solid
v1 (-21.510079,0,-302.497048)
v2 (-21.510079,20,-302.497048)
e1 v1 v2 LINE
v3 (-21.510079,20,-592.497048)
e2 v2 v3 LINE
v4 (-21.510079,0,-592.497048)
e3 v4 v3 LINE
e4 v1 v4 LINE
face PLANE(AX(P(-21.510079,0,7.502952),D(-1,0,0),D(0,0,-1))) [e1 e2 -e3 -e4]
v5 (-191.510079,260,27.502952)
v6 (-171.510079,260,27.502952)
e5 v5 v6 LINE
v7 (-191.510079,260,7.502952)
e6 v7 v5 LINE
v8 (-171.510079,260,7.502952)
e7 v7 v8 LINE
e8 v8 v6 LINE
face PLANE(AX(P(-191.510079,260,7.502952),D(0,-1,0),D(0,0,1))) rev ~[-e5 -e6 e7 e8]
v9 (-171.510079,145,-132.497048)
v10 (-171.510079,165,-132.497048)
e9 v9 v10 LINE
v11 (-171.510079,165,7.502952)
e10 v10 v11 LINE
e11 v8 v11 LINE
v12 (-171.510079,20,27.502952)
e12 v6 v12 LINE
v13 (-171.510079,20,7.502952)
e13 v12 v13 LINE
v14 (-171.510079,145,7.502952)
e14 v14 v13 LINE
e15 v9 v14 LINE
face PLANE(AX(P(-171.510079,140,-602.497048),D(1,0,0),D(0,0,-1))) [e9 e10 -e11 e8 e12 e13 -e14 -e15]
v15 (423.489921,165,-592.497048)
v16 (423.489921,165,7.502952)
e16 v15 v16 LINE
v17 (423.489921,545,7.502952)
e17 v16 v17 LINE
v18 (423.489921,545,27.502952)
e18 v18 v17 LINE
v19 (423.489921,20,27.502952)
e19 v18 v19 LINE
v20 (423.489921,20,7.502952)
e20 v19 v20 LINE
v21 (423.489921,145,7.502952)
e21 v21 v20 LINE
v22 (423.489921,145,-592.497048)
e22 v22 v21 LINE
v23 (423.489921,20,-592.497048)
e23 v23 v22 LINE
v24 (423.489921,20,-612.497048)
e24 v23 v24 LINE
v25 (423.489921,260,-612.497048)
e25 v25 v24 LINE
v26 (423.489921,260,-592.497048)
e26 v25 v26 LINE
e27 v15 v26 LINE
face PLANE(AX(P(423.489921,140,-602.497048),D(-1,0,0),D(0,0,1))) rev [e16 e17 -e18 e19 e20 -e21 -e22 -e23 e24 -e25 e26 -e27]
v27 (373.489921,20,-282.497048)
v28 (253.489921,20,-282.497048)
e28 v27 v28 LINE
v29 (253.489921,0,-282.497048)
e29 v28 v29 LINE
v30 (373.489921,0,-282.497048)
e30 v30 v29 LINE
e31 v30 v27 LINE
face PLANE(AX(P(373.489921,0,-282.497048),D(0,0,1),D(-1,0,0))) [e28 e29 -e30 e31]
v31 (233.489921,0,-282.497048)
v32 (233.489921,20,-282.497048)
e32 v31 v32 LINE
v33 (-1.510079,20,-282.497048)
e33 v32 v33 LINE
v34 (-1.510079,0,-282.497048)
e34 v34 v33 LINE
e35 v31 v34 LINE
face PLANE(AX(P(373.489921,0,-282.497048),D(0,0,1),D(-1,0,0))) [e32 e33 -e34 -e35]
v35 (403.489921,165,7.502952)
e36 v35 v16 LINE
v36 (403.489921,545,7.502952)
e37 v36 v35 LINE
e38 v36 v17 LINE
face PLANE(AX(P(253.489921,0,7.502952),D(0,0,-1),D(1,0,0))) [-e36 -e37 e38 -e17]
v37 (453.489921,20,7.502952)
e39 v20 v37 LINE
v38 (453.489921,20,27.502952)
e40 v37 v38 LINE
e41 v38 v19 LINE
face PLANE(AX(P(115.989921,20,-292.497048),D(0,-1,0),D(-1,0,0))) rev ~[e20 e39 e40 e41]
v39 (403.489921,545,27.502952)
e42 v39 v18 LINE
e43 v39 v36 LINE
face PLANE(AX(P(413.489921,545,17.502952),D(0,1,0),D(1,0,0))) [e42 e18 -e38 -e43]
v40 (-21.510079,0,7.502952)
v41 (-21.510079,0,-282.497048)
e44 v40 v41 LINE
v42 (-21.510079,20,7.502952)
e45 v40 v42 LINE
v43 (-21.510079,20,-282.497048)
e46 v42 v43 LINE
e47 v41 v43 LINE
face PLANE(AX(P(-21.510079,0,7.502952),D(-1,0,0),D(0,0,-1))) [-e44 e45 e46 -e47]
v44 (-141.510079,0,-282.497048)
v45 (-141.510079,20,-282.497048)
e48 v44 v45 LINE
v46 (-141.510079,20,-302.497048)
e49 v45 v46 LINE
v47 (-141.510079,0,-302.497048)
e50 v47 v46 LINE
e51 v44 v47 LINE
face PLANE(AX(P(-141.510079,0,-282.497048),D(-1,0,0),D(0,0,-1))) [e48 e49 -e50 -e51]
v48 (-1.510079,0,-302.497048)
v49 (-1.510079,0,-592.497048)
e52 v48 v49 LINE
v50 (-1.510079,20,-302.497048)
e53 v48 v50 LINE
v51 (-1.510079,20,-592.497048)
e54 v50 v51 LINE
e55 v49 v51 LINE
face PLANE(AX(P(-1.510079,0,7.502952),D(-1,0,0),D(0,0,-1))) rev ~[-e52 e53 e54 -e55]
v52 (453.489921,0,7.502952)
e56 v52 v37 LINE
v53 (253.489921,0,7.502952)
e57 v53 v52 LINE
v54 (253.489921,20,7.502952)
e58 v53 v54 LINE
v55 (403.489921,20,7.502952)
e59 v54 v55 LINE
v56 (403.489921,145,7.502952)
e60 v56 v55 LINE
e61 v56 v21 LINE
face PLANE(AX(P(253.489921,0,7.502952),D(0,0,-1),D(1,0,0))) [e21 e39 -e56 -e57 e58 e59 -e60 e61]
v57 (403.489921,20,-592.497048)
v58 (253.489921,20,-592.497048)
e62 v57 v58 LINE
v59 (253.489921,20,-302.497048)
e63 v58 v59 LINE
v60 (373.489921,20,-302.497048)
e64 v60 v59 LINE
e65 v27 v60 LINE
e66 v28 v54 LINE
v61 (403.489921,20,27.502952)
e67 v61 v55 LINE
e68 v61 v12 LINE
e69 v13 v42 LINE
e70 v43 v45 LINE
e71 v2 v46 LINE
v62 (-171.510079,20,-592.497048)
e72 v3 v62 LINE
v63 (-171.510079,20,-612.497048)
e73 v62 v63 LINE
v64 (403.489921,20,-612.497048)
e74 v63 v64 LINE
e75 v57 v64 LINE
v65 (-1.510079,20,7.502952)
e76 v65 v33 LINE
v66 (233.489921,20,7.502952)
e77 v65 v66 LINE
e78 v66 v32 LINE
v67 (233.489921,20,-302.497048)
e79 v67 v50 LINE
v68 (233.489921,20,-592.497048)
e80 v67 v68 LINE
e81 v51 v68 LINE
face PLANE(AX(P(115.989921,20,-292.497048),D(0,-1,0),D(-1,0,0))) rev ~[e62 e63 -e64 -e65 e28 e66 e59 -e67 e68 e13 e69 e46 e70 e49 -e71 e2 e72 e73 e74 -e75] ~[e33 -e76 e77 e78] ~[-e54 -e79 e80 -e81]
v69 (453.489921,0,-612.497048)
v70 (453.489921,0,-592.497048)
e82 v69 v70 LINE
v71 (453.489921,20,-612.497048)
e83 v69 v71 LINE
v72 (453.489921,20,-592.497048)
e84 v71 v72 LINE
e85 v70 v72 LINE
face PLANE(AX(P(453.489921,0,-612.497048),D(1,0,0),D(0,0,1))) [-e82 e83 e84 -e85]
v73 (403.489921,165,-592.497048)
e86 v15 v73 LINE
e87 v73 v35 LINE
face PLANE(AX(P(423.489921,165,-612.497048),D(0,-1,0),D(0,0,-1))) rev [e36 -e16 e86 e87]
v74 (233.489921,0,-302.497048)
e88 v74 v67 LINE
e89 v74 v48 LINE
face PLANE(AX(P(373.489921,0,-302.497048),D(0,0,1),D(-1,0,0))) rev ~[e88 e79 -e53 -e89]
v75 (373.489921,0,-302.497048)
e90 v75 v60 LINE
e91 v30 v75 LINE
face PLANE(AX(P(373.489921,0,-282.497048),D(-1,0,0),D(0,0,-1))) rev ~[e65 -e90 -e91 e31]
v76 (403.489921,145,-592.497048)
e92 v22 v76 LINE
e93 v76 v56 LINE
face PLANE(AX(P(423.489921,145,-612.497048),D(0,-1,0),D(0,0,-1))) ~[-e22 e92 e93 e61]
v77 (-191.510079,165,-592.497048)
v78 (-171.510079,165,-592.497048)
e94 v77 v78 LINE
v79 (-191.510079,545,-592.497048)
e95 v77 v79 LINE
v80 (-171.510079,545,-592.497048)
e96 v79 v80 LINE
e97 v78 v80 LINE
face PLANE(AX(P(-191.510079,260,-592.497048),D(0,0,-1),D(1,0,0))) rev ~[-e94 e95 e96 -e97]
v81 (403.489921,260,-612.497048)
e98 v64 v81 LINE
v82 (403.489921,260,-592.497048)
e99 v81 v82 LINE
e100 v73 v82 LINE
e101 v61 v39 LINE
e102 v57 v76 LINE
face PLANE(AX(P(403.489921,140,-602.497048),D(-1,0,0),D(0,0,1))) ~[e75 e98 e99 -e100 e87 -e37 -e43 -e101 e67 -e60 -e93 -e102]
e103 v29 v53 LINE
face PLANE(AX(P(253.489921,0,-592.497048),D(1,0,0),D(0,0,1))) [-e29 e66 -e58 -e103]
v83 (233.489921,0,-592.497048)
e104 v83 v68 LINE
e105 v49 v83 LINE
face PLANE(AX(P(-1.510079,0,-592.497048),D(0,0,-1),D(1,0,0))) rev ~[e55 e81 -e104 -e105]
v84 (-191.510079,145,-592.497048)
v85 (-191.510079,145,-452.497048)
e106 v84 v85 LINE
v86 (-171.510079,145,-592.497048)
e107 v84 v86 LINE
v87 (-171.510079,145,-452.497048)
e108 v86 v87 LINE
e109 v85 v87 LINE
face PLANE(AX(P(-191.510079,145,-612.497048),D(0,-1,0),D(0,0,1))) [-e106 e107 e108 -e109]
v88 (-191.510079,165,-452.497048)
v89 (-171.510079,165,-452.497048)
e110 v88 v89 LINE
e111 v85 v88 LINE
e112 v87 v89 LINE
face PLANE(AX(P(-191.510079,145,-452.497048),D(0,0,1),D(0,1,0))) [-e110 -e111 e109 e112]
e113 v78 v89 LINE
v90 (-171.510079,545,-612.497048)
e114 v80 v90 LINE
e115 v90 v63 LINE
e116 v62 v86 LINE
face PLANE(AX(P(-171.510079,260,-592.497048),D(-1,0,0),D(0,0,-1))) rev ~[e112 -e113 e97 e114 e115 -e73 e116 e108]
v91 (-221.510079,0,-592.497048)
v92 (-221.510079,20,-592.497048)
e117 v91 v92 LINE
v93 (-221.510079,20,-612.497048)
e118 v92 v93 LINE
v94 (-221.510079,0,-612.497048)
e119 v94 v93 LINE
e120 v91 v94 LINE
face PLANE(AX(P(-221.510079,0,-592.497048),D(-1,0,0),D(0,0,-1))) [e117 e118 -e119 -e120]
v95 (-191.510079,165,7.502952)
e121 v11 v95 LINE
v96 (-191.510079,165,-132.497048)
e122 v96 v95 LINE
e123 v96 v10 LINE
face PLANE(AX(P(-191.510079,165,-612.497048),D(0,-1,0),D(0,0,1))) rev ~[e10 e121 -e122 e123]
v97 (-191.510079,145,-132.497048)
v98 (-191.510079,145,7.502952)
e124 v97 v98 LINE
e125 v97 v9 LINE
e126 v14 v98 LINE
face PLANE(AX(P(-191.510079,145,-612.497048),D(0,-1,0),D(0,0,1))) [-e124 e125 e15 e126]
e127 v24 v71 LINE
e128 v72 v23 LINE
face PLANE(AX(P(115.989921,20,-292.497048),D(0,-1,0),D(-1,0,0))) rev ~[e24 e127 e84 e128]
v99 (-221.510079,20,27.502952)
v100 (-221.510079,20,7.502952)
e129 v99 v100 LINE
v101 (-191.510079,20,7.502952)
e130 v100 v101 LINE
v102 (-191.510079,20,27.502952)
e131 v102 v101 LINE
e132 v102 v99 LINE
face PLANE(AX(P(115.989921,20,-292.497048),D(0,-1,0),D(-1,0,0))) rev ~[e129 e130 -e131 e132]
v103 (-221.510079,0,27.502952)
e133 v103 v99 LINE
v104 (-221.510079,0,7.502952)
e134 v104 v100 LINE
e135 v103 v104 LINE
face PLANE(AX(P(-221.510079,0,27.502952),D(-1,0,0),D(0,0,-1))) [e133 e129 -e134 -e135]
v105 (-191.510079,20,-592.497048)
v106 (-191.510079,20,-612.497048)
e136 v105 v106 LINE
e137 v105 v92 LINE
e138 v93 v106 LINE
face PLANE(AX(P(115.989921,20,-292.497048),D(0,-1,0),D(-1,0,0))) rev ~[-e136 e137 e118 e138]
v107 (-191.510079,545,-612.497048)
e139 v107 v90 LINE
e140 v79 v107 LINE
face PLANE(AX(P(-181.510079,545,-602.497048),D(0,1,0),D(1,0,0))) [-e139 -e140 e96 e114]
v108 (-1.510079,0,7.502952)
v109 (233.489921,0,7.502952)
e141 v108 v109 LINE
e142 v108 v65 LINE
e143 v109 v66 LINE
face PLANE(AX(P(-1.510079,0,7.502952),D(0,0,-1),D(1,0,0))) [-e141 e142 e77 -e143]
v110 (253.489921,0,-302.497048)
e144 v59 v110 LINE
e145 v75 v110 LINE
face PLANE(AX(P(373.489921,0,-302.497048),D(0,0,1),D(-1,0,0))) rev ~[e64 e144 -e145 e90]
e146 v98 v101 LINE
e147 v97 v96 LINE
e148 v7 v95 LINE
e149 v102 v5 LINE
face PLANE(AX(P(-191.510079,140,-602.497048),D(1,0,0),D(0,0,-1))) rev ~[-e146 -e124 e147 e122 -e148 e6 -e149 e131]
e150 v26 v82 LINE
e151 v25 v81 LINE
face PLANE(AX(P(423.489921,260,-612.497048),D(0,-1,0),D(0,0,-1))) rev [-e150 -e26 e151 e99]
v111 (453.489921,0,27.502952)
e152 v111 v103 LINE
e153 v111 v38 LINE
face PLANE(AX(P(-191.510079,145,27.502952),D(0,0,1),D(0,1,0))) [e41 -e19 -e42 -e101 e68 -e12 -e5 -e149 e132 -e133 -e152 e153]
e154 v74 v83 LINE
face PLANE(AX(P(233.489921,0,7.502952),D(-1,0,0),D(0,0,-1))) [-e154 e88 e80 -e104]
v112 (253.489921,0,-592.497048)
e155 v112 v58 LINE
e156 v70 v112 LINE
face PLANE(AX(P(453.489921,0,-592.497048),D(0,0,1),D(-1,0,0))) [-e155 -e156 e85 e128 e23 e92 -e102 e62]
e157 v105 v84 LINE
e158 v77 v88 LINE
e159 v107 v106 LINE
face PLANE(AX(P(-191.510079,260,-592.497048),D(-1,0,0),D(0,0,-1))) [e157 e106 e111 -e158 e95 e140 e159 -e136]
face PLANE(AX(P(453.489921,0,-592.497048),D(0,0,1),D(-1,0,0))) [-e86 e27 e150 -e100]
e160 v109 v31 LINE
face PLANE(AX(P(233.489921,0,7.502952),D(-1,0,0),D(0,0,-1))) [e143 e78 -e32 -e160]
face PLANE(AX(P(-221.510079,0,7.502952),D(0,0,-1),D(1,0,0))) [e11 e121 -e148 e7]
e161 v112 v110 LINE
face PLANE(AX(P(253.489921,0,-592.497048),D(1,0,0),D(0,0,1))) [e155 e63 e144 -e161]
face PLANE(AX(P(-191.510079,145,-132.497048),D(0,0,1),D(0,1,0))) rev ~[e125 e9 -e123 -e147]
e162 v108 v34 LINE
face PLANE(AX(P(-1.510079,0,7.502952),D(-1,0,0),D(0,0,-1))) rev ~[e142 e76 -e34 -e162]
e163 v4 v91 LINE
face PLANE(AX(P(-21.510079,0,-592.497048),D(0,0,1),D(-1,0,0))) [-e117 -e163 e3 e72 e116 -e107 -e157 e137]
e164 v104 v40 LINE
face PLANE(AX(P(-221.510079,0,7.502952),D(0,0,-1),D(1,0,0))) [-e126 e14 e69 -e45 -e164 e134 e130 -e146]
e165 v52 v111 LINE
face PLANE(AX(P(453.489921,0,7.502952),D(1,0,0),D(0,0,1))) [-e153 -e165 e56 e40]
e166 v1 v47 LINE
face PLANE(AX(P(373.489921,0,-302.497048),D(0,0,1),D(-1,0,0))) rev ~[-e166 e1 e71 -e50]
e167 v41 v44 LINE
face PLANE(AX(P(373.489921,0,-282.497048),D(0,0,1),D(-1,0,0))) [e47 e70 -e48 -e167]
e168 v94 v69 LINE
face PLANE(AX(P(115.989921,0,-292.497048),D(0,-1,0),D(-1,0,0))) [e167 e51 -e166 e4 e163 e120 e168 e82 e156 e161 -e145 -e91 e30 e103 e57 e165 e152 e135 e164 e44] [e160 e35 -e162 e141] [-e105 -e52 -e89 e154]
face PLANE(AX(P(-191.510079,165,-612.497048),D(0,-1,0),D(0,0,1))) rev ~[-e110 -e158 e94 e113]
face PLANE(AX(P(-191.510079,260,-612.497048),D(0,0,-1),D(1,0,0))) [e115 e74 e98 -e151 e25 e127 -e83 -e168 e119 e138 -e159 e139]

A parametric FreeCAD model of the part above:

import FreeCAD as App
import Part
import Sketcher
from FreeCAD import Vector
Q = App.Units.Quantity


def add_polygon(sketch, points):
    """Adds a closed chain of lines whose ends are joined by coincident constraints."""
    first, n = sketch.GeometryCount, len(points)
    for a, b in zip(points, points[1:] + points[:1]):
        sketch.addGeometry(Part.LineSegment(App.Vector(*a, 0), App.Vector(*b, 0)), False)
    for i in range(n):
        sketch.addConstraint(Sketcher.Constraint("Coincident", first + i, 2, first + (i + 1) % n, 1))

doc = App.newDocument("Part")
body = doc.addObject("PartDesign::Body", "Body")

# Sketch on XZ plane
sketch1 = doc.addObject("Sketcher::SketchObject", "Sketch")
body.addObject(sketch1)
sketch1.AttachmentSupport = (doc.XZ_Plane, [""])
sketch1.MapMode = "FlatFace"
add_polygon(sketch1, [(-22, 8), (-222, 8), (-222, 28), (453, 28), (453, 8), (253, 8), (253, -592), (453, -592), (453, -612), (-222, -612), (-222, -592), (-22, -592)])  # lines 0-11
add_polygon(sketch1, [(-2, 8), (-2, -592), (233, -592), (233, 8)])  # lines 12-15
sketch1.addConstraint(Sketcher.Constraint("Horizontal", 0))
sketch1.addConstraint(Sketcher.Constraint("Vertical", 1))
sketch1.addConstraint(Sketcher.Constraint("Horizontal", 2))
sketch1.addConstraint(Sketcher.Constraint("Vertical", 3))
sketch1.addConstraint(Sketcher.Constraint("Horizontal", 4))
sketch1.addConstraint(Sketcher.Constraint("Vertical", 5))
sketch1.addConstraint(Sketcher.Constraint("Horizontal", 6))
sketch1.addConstraint(Sketcher.Constraint("Vertical", 7))
sketch1.addConstraint(Sketcher.Constraint("Horizontal", 8))
sketch1.addConstraint(Sketcher.Constraint("Vertical", 9))
sketch1.addConstraint(Sketcher.Constraint("Horizontal", 10))
sketch1.addConstraint(Sketcher.Constraint("Vertical", 11))
sketch1.addConstraint(Sketcher.Constraint("Vertical", 12))
sketch1.addConstraint(Sketcher.Constraint("Horizontal", 13))
sketch1.addConstraint(Sketcher.Constraint("Vertical", 14))
sketch1.addConstraint(Sketcher.Constraint("Horizontal", 15))
sketch1.addConstraint(Sketcher.Constraint("Horizontal", 0, 2, 3, 2))
sketch1.addConstraint(Sketcher.Constraint("Horizontal", 6, 2, 9, 2))
sketch1.addConstraint(Sketcher.Constraint("Horizontal", 10, 2, 12, 2))
sketch1.addConstraint(Sketcher.Constraint("Horizontal", 11, 2, 14, 2))
sketch1.addConstraint(Sketcher.Constraint("Vertical", 3, 2, 6, 2))
sketch1.addConstraint(Sketcher.Constraint("Vertical", 1, 2, 8, 2))
sketch1.addConstraint(Sketcher.Constraint("Equal", 0, 4))
sketch1.addConstraint(Sketcher.Constraint("Equal", 3, 7))
sketch1.addConstraint(Sketcher.Constraint("DistanceX", 0, 2, 0, 1, Q("200 mm")))
sketch1.addConstraint(Sketcher.Constraint("DistanceX", 2, 1, 2, 2, Q("675 mm")))
sketch1.addConstraint(Sketcher.Constraint("DistanceX", 13, 1, 13, 2, Q("235 mm")))
sketch1.addConstraint(Sketcher.Constraint("DistanceY", 1, 1, 1, 2, Q("20 mm")))
sketch1.addConstraint(Sketcher.Constraint("DistanceY", 5, 2, 5, 1, Q("600 mm")))
sketch1.addConstraint(Sketcher.Constraint("DistanceX", 10, 2, 12, 2, Q("20 mm")))
sketch1.addConstraint(Sketcher.Constraint("DistanceX", 0, 2, -1, 1, Q("221.510079 mm")))
sketch1.addConstraint(Sketcher.Constraint("DistanceY", -1, 1, 0, 2, Q("7.502952 mm")))
pad1 = doc.addObject("PartDesign::Pad", "Pad")
body.addObject(pad1)
pad1.Profile = sketch1
pad1.Length = 20
pad1.Reversed = True

# Sketch on YZ plane
sketch2 = doc.addObject("Sketcher::SketchObject", "Sketch001")
body.addObject(sketch2)
sketch2.AttachmentSupport = (doc.YZ_Plane, [""])
sketch2.MapMode = "FlatFace"
sketch2.AttachmentOffset = App.Placement(Vector(0, 0, -191.510079), App.Rotation())
add_polygon(sketch2, [(20, 8), (20, 28), (260, 28), (260, 8)])  # lines 0-3
add_polygon(sketch2, [(20, -592), (260, -592), (260, -612), (20, -612)])  # lines 4-7
sketch2.addConstraint(Sketcher.Constraint("Vertical", 0))
sketch2.addConstraint(Sketcher.Constraint("Horizontal", 1))
sketch2.addConstraint(Sketcher.Constraint("Vertical", 2))
sketch2.addConstraint(Sketcher.Constraint("Horizontal", 3))
sketch2.addConstraint(Sketcher.Constraint("Horizontal", 4))
sketch2.addConstraint(Sketcher.Constraint("Vertical", 5))
sketch2.addConstraint(Sketcher.Constraint("Horizontal", 6))
sketch2.addConstraint(Sketcher.Constraint("Vertical", 7))
sketch2.addConstraint(Sketcher.Constraint("Vertical", 2, 2, 4, 2))
sketch2.addConstraint(Sketcher.Constraint("Vertical", 3, 2, 6, 2))
sketch2.addConstraint(Sketcher.Constraint("Equal", 2, 5))
sketch2.addConstraint(Sketcher.Constraint("DistanceX", 1, 1, 1, 2, Q("240 mm")))
sketch2.addConstraint(Sketcher.Constraint("DistanceY", 0, 1, 0, 2, Q("20 mm")))
sketch2.addConstraint(Sketcher.Constraint("DistanceX", -1, 1, 0, 2, Q("20 mm")))
sketch2.addConstraint(Sketcher.Constraint("DistanceY", 4, 2, 2, 2, Q("600 mm")))
sketch2.addConstraint(Sketcher.Constraint("DistanceY", -1, 1, 0, 2, Q("27.502952 mm")))
pad2 = doc.addObject("PartDesign::Pad", "Pad001")
body.addObject(pad2)
pad2.Profile = sketch2
pad2.Length = 20
doc.recompute()

datumplane = doc.addObject("PartDesign::Plane", "DatumPlane")
body.addObject(datumplane)
datumplane.AttachmentSupport = (doc.YZ_Plane, [""])
datumplane.MapMode = "FlatFace"
datumplane.AttachmentOffset = App.Placement(Vector(0, 0, 115.989921), App.Rotation())
mirrored = doc.addObject("PartDesign::Mirrored", "Mirrored")
body.addObject(mirrored)
mirrored.Originals = [pad2]
mirrored.MirrorPlane = (datumplane, [""])
body.Tip = mirrored

# Sketch on YZ plane
sketch3 = doc.addObject("Sketcher::SketchObject", "Sketch002")
body.addObject(sketch3)
sketch3.AttachmentSupport = (doc.YZ_Plane, [""])
sketch3.MapMode = "FlatFace"
sketch3.AttachmentOffset = App.Placement(Vector(0, 0, -191.510079), App.Rotation())
add_polygon(sketch3, [(165, -612), (145, -612), (145, 28), (165, 28)])  # lines 0-3
sketch3.addConstraint(Sketcher.Constraint("Horizontal", 0))
sketch3.addConstraint(Sketcher.Constraint("Vertical", 1))
sketch3.addConstraint(Sketcher.Constraint("Horizontal", 2))
sketch3.addConstraint(Sketcher.Constraint("Vertical", 3))
sketch3.addConstraint(Sketcher.Constraint("DistanceX", 0, 2, 0, 1, Q("20 mm")))
sketch3.addConstraint(Sketcher.Constraint("DistanceY", 1, 1, 1, 2, Q("640 mm")))
sketch3.addConstraint(Sketcher.Constraint("DistanceX", -1, 1, 0, 2, Q("145 mm")))
sketch3.addConstraint(Sketcher.Constraint("DistanceY", 0, 2, -1, 1, Q("612.497048 mm")))
pad3 = doc.addObject("PartDesign::Pad", "Pad002")
body.addObject(pad3)
pad3.Profile = sketch3
pad3.Length = 20
doc.recompute()

datumplane2 = doc.addObject("PartDesign::Plane", "DatumPlane001")
body.addObject(datumplane2)
datumplane2.AttachmentSupport = (doc.YZ_Plane, [""])
datumplane2.MapMode = "FlatFace"
datumplane2.AttachmentOffset = App.Placement(Vector(0, 0, 115.989921), App.Rotation())
mirrored2 = doc.addObject("PartDesign::Mirrored", "Mirrored001")
body.addObject(mirrored2)
mirrored2.Originals = [pad3]
mirrored2.MirrorPlane = (datumplane2, [""])
body.Tip = mirrored2

# Sketch on YZ plane
sketch4 = doc.addObject("Sketcher::SketchObject", "Sketch003")
body.addObject(sketch4)
sketch4.AttachmentSupport = (doc.YZ_Plane, [""])
sketch4.MapMode = "FlatFace"
sketch4.AttachmentOffset = App.Placement(Vector(0, 0, -191.510079), App.Rotation())
add_polygon(sketch4, [(165, -452), (145, -452), (145, -132), (165, -132)])  # lines 0-3
sketch4.addConstraint(Sketcher.Constraint("Horizontal", 0))
sketch4.addConstraint(Sketcher.Constraint("Vertical", 1))
sketch4.addConstraint(Sketcher.Constraint("Horizontal", 2))
sketch4.addConstraint(Sketcher.Constraint("Vertical", 3))
sketch4.addConstraint(Sketcher.Constraint("DistanceX", 0, 2, 0, 1, Q("20 mm")))
sketch4.addConstraint(Sketcher.Constraint("DistanceY", 1, 1, 1, 2, Q("320 mm")))
sketch4.addConstraint(Sketcher.Constraint("DistanceX", -1, 1, 0, 2, Q("145 mm")))
sketch4.addConstraint(Sketcher.Constraint("DistanceY", 0, 2, -1, 1, Q("452.497048 mm")))
pocket1 = doc.addObject("PartDesign::Pocket", "Pocket")
body.addObject(pocket1)
pocket1.Profile = sketch4
pocket1.Length = 20
pocket1.Reversed = True

# Sketch on XZ plane
sketch5 = doc.addObject("Sketcher::SketchObject", "Sketch004")
body.addObject(sketch5)
sketch5.AttachmentSupport = (doc.XZ_Plane, [""])
sketch5.MapMode = "FlatFace"
add_polygon(sketch5, [(373, -302), (373, -282), (-142, -282), (-142, -302)])  # lines 0-3
sketch5.addConstraint(Sketcher.Constraint("Vertical", 0))
sketch5.addConstraint(Sketcher.Constraint("Horizontal", 1))
sketch5.addConstraint(Sketcher.Constraint("Vertical", 2))
sketch5.addConstraint(Sketcher.Constraint("Horizontal", 3))
sketch5.addConstraint(Sketcher.Constraint("DistanceX", 1, 2, 1, 1, Q("515 mm")))
sketch5.addConstraint(Sketcher.Constraint("DistanceY", 0, 1, 0, 2, Q("20 mm")))
sketch5.addConstraint(Sketcher.Constraint("DistanceX", -1, 1, 0, 2, Q("373.489921 mm")))
sketch5.addConstraint(Sketcher.Constraint("DistanceY", 0, 2, -1, 1, Q("282.497048 mm")))
pad4 = doc.addObject("PartDesign::Pad", "Pad003")
body.addObject(pad4)
pad4.Profile = sketch5
pad4.Length = 20
pad4.Reversed = True

# Sketch on XZ plane
sketch6 = doc.addObject("Sketcher::SketchObject", "Sketch005")
body.addObject(sketch6)
sketch6.AttachmentSupport = (doc.XZ_Plane, [""])
sketch6.MapMode = "FlatFace"
sketch6.AttachmentOffset = App.Placement(Vector(0, 0, -260), App.Rotation())
add_polygon(sketch6, [(-192, -612), (-192, -592), (-172, -592), (-172, -612)])  # lines 0-3
add_polygon(sketch6, [(403, 8), (403, 28), (423, 28), (423, 8)])  # lines 4-7
sketch6.addConstraint(Sketcher.Constraint("Vertical", 0))
sketch6.addConstraint(Sketcher.Constraint("Horizontal", 1))
sketch6.addConstraint(Sketcher.Constraint("Vertical", 2))
sketch6.addConstraint(Sketcher.Constraint("Horizontal", 3))
sketch6.addConstraint(Sketcher.Constraint("Vertical", 4))
sketch6.addConstraint(Sketcher.Constraint("Horizontal", 5))
sketch6.addConstraint(Sketcher.Constraint("Vertical", 6))
sketch6.addConstraint(Sketcher.Constraint("Horizontal", 7))
sketch6.addConstraint(Sketcher.Constraint("Equal", 3, 5))
sketch6.addConstraint(Sketcher.Constraint("Equal", 7, 0))
sketch6.addConstraint(Sketcher.Constraint("Equal", 2, 4))
sketch6.addConstraint(Sketcher.Constraint("DistanceX", 1, 1, 1, 2, Q("20 mm")))
sketch6.addConstraint(Sketcher.Constraint("DistanceX", 1, 2, 4, 2, Q("575 mm")))
sketch6.addConstraint(Sketcher.Constraint("DistanceY", 1, 2, 4, 2, Q("620 mm")))
sketch6.addConstraint(Sketcher.Constraint("DistanceX", 0, 2, -1, 1, Q("191.510079 mm")))
sketch6.addConstraint(Sketcher.Constraint("DistanceY", 0, 2, -1, 1, Q("592.497048 mm")))
pad5 = doc.addObject("PartDesign::Pad", "Pad004")
body.addObject(pad5)
pad5.Profile = sketch6
pad5.Length = 285
pad5.Reversed = True

doc.recompute()
